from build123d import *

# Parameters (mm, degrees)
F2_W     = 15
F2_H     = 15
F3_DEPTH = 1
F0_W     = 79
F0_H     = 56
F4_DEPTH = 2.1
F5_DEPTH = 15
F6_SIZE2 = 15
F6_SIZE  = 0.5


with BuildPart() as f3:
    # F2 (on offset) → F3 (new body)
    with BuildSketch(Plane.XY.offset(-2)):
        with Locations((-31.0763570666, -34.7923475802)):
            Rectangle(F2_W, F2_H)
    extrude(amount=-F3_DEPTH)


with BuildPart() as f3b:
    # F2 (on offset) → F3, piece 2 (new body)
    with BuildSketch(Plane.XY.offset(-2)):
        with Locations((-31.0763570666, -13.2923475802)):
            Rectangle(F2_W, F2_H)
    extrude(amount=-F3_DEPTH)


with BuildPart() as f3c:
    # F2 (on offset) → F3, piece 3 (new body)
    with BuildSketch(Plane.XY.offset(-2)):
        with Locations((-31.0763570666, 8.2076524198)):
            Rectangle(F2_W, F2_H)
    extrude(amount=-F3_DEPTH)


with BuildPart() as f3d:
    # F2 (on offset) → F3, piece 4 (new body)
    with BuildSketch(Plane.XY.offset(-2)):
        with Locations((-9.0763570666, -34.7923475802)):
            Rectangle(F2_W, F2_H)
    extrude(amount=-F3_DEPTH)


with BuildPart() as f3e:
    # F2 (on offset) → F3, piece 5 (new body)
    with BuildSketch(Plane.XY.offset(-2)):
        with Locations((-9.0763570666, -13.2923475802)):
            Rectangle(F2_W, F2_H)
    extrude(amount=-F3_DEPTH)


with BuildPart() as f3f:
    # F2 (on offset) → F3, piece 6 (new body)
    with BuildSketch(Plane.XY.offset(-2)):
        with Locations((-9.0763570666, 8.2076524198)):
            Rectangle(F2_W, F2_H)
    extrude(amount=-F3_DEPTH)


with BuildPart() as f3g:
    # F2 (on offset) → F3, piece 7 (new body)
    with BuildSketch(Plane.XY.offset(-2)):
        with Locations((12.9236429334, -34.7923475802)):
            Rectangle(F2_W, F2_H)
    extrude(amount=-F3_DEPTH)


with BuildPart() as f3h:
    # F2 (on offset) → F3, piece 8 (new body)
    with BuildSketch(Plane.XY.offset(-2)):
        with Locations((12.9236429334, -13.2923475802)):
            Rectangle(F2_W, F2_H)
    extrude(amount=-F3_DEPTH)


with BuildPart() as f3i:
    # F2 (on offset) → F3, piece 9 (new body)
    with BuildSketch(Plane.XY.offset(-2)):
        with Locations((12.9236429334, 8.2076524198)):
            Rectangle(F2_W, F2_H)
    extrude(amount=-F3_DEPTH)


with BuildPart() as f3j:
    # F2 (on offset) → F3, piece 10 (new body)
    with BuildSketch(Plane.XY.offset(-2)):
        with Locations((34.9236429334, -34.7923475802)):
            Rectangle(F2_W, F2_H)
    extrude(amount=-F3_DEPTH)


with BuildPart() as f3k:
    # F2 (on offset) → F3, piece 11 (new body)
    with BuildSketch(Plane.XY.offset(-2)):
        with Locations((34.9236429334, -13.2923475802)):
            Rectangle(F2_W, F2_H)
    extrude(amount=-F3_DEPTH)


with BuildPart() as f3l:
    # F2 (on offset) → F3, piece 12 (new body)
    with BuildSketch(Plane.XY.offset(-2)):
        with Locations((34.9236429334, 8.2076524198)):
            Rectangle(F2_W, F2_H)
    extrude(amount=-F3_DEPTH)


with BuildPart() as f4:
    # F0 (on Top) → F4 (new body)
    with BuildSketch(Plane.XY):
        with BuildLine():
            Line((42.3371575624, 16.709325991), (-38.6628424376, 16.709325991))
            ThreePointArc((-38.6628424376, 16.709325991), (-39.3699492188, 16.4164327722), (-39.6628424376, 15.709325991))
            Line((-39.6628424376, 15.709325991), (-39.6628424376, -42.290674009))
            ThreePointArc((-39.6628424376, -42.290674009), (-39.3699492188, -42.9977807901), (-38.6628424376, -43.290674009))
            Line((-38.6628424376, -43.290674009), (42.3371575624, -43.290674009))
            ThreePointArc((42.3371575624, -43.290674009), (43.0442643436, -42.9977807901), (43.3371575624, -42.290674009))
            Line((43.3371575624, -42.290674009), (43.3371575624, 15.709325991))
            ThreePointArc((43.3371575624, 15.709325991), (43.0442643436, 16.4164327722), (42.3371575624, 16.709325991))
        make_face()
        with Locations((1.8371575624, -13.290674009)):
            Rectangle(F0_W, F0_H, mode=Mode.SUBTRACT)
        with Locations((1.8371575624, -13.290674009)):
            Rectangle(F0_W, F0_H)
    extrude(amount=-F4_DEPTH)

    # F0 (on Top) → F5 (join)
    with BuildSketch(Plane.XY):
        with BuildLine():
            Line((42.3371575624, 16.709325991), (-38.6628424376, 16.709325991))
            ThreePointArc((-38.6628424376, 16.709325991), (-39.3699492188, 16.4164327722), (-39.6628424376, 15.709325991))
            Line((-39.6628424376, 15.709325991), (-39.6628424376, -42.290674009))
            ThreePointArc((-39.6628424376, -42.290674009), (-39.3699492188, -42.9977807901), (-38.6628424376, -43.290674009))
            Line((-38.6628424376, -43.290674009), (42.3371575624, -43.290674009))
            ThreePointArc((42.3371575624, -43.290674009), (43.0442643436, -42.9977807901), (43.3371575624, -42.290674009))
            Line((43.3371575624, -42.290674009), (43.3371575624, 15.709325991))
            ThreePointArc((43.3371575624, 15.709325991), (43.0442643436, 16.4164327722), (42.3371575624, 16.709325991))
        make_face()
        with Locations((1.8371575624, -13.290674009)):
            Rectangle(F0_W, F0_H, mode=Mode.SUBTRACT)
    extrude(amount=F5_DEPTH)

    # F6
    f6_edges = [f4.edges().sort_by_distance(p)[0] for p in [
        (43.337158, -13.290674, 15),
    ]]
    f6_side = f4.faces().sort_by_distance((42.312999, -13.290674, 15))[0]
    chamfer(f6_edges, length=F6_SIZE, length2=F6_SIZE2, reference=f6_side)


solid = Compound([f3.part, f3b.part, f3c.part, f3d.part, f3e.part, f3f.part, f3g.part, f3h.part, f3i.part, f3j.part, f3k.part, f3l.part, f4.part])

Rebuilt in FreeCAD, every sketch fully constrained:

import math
import FreeCAD as App
import Part
import Sketcher

V = App.Vector
Q = App.Units.Quantity


def edges_at(feature, points):
    """Names of the edges that pass closest to the given points."""
    edges = feature.Shape.Edges
    near = lambda p: min(range(len(edges)), key=lambda i: edges[i].distToShape(Part.Vertex(*p))[0])
    return sorted({f"Edge{near(p) + 1}" for p in points})


def add_polygon(sketch, points):
    """Adds a closed chain of lines whose ends are joined by coincident constraints."""
    first, n = sketch.GeometryCount, len(points)
    for a, b in zip(points, points[1:] + points[:1]):
        sketch.addGeometry(Part.LineSegment(App.Vector(*a, 0), App.Vector(*b, 0)), False)
    for i in range(n):
        sketch.addConstraint(Sketcher.Constraint("Coincident", first + i, 2, first + (i + 1) % n, 1))

doc = App.newDocument("Part")
body = doc.addObject("PartDesign::Body", "Body")

sketch1 = body.newObject("Sketcher::SketchObject", "Sketch")
sketch1.AttachmentSupport = (doc.getObject("XY_Plane"), [""])
sketch1.MapMode = "FlatFace"
sketch1.AttachmentOffset = App.Placement(V(0, 0, -2), App.Rotation())
add_polygon(sketch1, [(-38.576357, -27.292348), (-38.576357, -42.292348), (-23.576357, -42.292348), (-23.576357, -27.292348)])
sketch1.addConstraint(Sketcher.Constraint("Vertical", 0))
sketch1.addConstraint(Sketcher.Constraint("Horizontal", 1))
sketch1.addConstraint(Sketcher.Constraint("Vertical", 2))
sketch1.addConstraint(Sketcher.Constraint("Horizontal", 3))
sketch1.addConstraint(Sketcher.Constraint("Equal", 3, 0))
sketch1.addConstraint(Sketcher.Constraint("DistanceX", 1, 1, 1, 2, Q("15 mm")))
sketch1.addConstraint(Sketcher.Constraint("DistanceX", 0, 2, -1, 1, Q("38.576357 mm")))
sketch1.addConstraint(Sketcher.Constraint("DistanceY", 0, 2, -1, 1, Q("42.292348 mm")))
pad1 = body.newObject("PartDesign::Pad", "Pad")
pad1.Profile = sketch1
pad1.Length = 1
pad1.Reversed = True
body2 = doc.addObject("PartDesign::Body", "Body001")

sketch2 = body2.newObject("Sketcher::SketchObject", "Sketch001")
sketch2.AttachmentSupport = (doc.getObject("XY_Plane001"), [""])
sketch2.MapMode = "FlatFace"
sketch2.AttachmentOffset = App.Placement(V(0, 0, -2), App.Rotation())
add_polygon(sketch2, [(-38.576357, -5.792348), (-38.576357, -20.792348), (-23.576357, -20.792348), (-23.576357, -5.792348)])
sketch2.addConstraint(Sketcher.Constraint("Vertical", 0))
sketch2.addConstraint(Sketcher.Constraint("Horizontal", 1))
sketch2.addConstraint(Sketcher.Constraint("Vertical", 2))
sketch2.addConstraint(Sketcher.Constraint("Horizontal", 3))
sketch2.addConstraint(Sketcher.Constraint("Equal", 3, 0))
sketch2.addConstraint(Sketcher.Constraint("DistanceX", 1, 1, 1, 2, Q("15 mm")))
sketch2.addConstraint(Sketcher.Constraint("DistanceX", 0, 2, -1, 1, Q("38.576357 mm")))
sketch2.addConstraint(Sketcher.Constraint("DistanceY", 0, 2, -1, 1, Q("20.792348 mm")))
pad2 = body2.newObject("PartDesign::Pad", "Pad001")
pad2.Profile = sketch2
pad2.Length = 1
pad2.Reversed = True
body3 = doc.addObject("PartDesign::Body", "Body002")

sketch3 = body3.newObject("Sketcher::SketchObject", "Sketch002")
sketch3.AttachmentSupport = (doc.getObject("XY_Plane002"), [""])
sketch3.MapMode = "FlatFace"
sketch3.AttachmentOffset = App.Placement(V(0, 0, -2), App.Rotation())
add_polygon(sketch3, [(-38.576357, 15.707652), (-38.576357, 0.707652), (-23.576357, 0.707652), (-23.576357, 15.707652)])
sketch3.addConstraint(Sketcher.Constraint("Vertical", 0))
sketch3.addConstraint(Sketcher.Constraint("Horizontal", 1))
sketch3.addConstraint(Sketcher.Constraint("Vertical", 2))
sketch3.addConstraint(Sketcher.Constraint("Horizontal", 3))
sketch3.addConstraint(Sketcher.Constraint("Equal", 3, 0))
sketch3.addConstraint(Sketcher.Constraint("DistanceX", 1, 1, 1, 2, Q("15 mm")))
sketch3.addConstraint(Sketcher.Constraint("DistanceX", 0, 2, -1, 1, Q("38.576357 mm")))
sketch3.addConstraint(Sketcher.Constraint("DistanceY", -1, 1, 0, 2, Q("0.707652 mm")))
pad3 = body3.newObject("PartDesign::Pad", "Pad002")
pad3.Profile = sketch3
pad3.Length = 1
pad3.Reversed = True
body4 = doc.addObject("PartDesign::Body", "Body003")

sketch4 = body4.newObject("Sketcher::SketchObject", "Sketch003")
sketch4.AttachmentSupport = (doc.getObject("XY_Plane003"), [""])
sketch4.MapMode = "FlatFace"
sketch4.AttachmentOffset = App.Placement(V(0, 0, -2), App.Rotation())
add_polygon(sketch4, [(-16.576357, -27.292348), (-16.576357, -42.292348), (-1.576357, -42.292348), (-1.576357, -27.292348)])
sketch4.addConstraint(Sketcher.Constraint("Vertical", 0))
sketch4.addConstraint(Sketcher.Constraint("Horizontal", 1))
sketch4.addConstraint(Sketcher.Constraint("Vertical", 2))
sketch4.addConstraint(Sketcher.Constraint("Horizontal", 3))
sketch4.addConstraint(Sketcher.Constraint("Equal", 3, 0))
sketch4.addConstraint(Sketcher.Constraint("DistanceX", 1, 1, 1, 2, Q("15 mm")))
sketch4.addConstraint(Sketcher.Constraint("DistanceX", 0, 2, -1, 1, Q("16.576357 mm")))
sketch4.addConstraint(Sketcher.Constraint("DistanceY", 0, 2, -1, 1, Q("42.292348 mm")))
pad4 = body4.newObject("PartDesign::Pad", "Pad003")
pad4.Profile = sketch4
pad4.Length = 1
pad4.Reversed = True
body5 = doc.addObject("PartDesign::Body", "Body004")

sketch5 = body5.newObject("Sketcher::SketchObject", "Sketch004")
sketch5.AttachmentSupport = (doc.getObject("XY_Plane004"), [""])
sketch5.MapMode = "FlatFace"
sketch5.AttachmentOffset = App.Placement(V(0, 0, -2), App.Rotation())
add_polygon(sketch5, [(-16.576357, -5.792348), (-16.576357, -20.792348), (-1.576357, -20.792348), (-1.576357, -5.792348)])
sketch5.addConstraint(Sketcher.Constraint("Vertical", 0))
sketch5.addConstraint(Sketcher.Constraint("Horizontal", 1))
sketch5.addConstraint(Sketcher.Constraint("Vertical", 2))
sketch5.addConstraint(Sketcher.Constraint("Horizontal", 3))
sketch5.addConstraint(Sketcher.Constraint("Equal", 3, 0))
sketch5.addConstraint(Sketcher.Constraint("DistanceX", 1, 1, 1, 2, Q("15 mm")))
sketch5.addConstraint(Sketcher.Constraint("DistanceX", 0, 2, -1, 1, Q("16.576357 mm")))
sketch5.addConstraint(Sketcher.Constraint("DistanceY", 0, 2, -1, 1, Q("20.792348 mm")))
pad5 = body5.newObject("PartDesign::Pad", "Pad004")
pad5.Profile = sketch5
pad5.Length = 1
pad5.Reversed = True
body6 = doc.addObject("PartDesign::Body", "Body005")

sketch6 = body6.newObject("Sketcher::SketchObject", "Sketch005")
sketch6.AttachmentSupport = (doc.getObject("XY_Plane005"), [""])
sketch6.MapMode = "FlatFace"
sketch6.AttachmentOffset = App.Placement(V(0, 0, -2), App.Rotation())
add_polygon(sketch6, [(-16.576357, 15.707652), (-16.576357, 0.707652), (-1.576357, 0.707652), (-1.576357, 15.707652)])
sketch6.addConstraint(Sketcher.Constraint("Vertical", 0))
sketch6.addConstraint(Sketcher.Constraint("Horizontal", 1))
sketch6.addConstraint(Sketcher.Constraint("Vertical", 2))
sketch6.addConstraint(Sketcher.Constraint("Horizontal", 3))
sketch6.addConstraint(Sketcher.Constraint("Equal", 3, 0))
sketch6.addConstraint(Sketcher.Constraint("DistanceX", 1, 1, 1, 2, Q("15 mm")))
sketch6.addConstraint(Sketcher.Constraint("DistanceX", 0, 2, -1, 1, Q("16.576357 mm")))
sketch6.addConstraint(Sketcher.Constraint("DistanceY", -1, 1, 0, 2, Q("0.707652 mm")))
pad6 = body6.newObject("PartDesign::Pad", "Pad005")
pad6.Profile = sketch6
pad6.Length = 1
pad6.Reversed = True
body7 = doc.addObject("PartDesign::Body", "Body006")

sketch7 = body7.newObject("Sketcher::SketchObject", "Sketch006")
sketch7.AttachmentSupport = (doc.getObject("XY_Plane006"), [""])
sketch7.MapMode = "FlatFace"
sketch7.AttachmentOffset = App.Placement(V(0, 0, -2), App.Rotation())
add_polygon(sketch7, [(5.423643, -27.292348), (5.423643, -42.292348), (20.423643, -42.292348), (20.423643, -27.292348)])
sketch7.addConstraint(Sketcher.Constraint("Vertical", 0))
sketch7.addConstraint(Sketcher.Constraint("Horizontal", 1))
sketch7.addConstraint(Sketcher.Constraint("Vertical", 2))
sketch7.addConstraint(Sketcher.Constraint("Horizontal", 3))
sketch7.addConstraint(Sketcher.Constraint("Equal", 3, 0))
sketch7.addConstraint(Sketcher.Constraint("DistanceX", 1, 1, 1, 2, Q("15 mm")))
sketch7.addConstraint(Sketcher.Constraint("DistanceX", -1, 1, 0, 2, Q("5.423643 mm")))
sketch7.addConstraint(Sketcher.Constraint("DistanceY", 0, 2, -1, 1, Q("42.292348 mm")))
pad7 = body7.newObject("PartDesign::Pad", "Pad006")
pad7.Profile = sketch7
pad7.Length = 1
pad7.Reversed = True
body8 = doc.addObject("PartDesign::Body", "Body007")

sketch8 = body8.newObject("Sketcher::SketchObject", "Sketch007")
sketch8.AttachmentSupport = (doc.getObject("XY_Plane007"), [""])
sketch8.MapMode = "FlatFace"
sketch8.AttachmentOffset = App.Placement(V(0, 0, -2), App.Rotation())
add_polygon(sketch8, [(5.423643, -5.792348), (5.423643, -20.792348), (20.423643, -20.792348), (20.423643, -5.792348)])
sketch8.addConstraint(Sketcher.Constraint("Vertical", 0))
sketch8.addConstraint(Sketcher.Constraint("Horizontal", 1))
sketch8.addConstraint(Sketcher.Constraint("Vertical", 2))
sketch8.addConstraint(Sketcher.Constraint("Horizontal", 3))
sketch8.addConstraint(Sketcher.Constraint("Equal", 3, 0))
sketch8.addConstraint(Sketcher.Constraint("DistanceX", 1, 1, 1, 2, Q("15 mm")))
sketch8.addConstraint(Sketcher.Constraint("DistanceX", -1, 1, 0, 2, Q("5.423643 mm")))
sketch8.addConstraint(Sketcher.Constraint("DistanceY", 0, 2, -1, 1, Q("20.792348 mm")))
pad8 = body8.newObject("PartDesign::Pad", "Pad007")
pad8.Profile = sketch8
pad8.Length = 1
pad8.Reversed = True
body9 = doc.addObject("PartDesign::Body", "Body008")

sketch9 = body9.newObject("Sketcher::SketchObject", "Sketch008")
sketch9.AttachmentSupport = (doc.getObject("XY_Plane008"), [""])
sketch9.MapMode = "FlatFace"
sketch9.AttachmentOffset = App.Placement(V(0, 0, -2), App.Rotation())
add_polygon(sketch9, [(5.423643, 15.707652), (5.423643, 0.707652), (20.423643, 0.707652), (20.423643, 15.707652)])
sketch9.addConstraint(Sketcher.Constraint("Vertical", 0))
sketch9.addConstraint(Sketcher.Constraint("Horizontal", 1))
sketch9.addConstraint(Sketcher.Constraint("Vertical", 2))
sketch9.addConstraint(Sketcher.Constraint("Horizontal", 3))
sketch9.addConstraint(Sketcher.Constraint("Equal", 3, 0))
sketch9.addConstraint(Sketcher.Constraint("DistanceX", 1, 1, 1, 2, Q("15 mm")))
sketch9.addConstraint(Sketcher.Constraint("DistanceX", -1, 1, 0, 2, Q("5.423643 mm")))
sketch9.addConstraint(Sketcher.Constraint("DistanceY", -1, 1, 0, 2, Q("0.707652 mm")))
pad9 = body9.newObject("PartDesign::Pad", "Pad008")
pad9.Profile = sketch9
pad9.Length = 1
pad9.Reversed = True
body10 = doc.addObject("PartDesign::Body", "Body009")

sketch10 = body10.newObject("Sketcher::SketchObject", "Sketch009")
sketch10.AttachmentSupport = (doc.getObject("XY_Plane009"), [""])
sketch10.MapMode = "FlatFace"
sketch10.AttachmentOffset = App.Placement(V(0, 0, -2), App.Rotation())
add_polygon(sketch10, [(27.423643, -27.292348), (27.423643, -42.292348), (42.423643, -42.292348), (42.423643, -27.292348)])
sketch10.addConstraint(Sketcher.Constraint("Vertical", 0))
sketch10.addConstraint(Sketcher.Constraint("Horizontal", 1))
sketch10.addConstraint(Sketcher.Constraint("Vertical", 2))
sketch10.addConstraint(Sketcher.Constraint("Horizontal", 3))
sketch10.addConstraint(Sketcher.Constraint("Equal", 3, 0))
sketch10.addConstraint(Sketcher.Constraint("DistanceX", 1, 1, 1, 2, Q("15 mm")))
sketch10.addConstraint(Sketcher.Constraint("DistanceX", -1, 1, 0, 2, Q("27.423643 mm")))
sketch10.addConstraint(Sketcher.Constraint("DistanceY", 0, 2, -1, 1, Q("42.292348 mm")))
pad10 = body10.newObject("PartDesign::Pad", "Pad009")
pad10.Profile = sketch10
pad10.Length = 1
pad10.Reversed = True
body11 = doc.addObject("PartDesign::Body", "Body010")

sketch11 = body11.newObject("Sketcher::SketchObject", "Sketch010")
sketch11.AttachmentSupport = (doc.getObject("XY_Plane010"), [""])
sketch11.MapMode = "FlatFace"
sketch11.AttachmentOffset = App.Placement(V(0, 0, -2), App.Rotation())
add_polygon(sketch11, [(27.423643, -5.792348), (27.423643, -20.792348), (42.423643, -20.792348), (42.423643, -5.792348)])
sketch11.addConstraint(Sketcher.Constraint("Vertical", 0))
sketch11.addConstraint(Sketcher.Constraint("Horizontal", 1))
sketch11.addConstraint(Sketcher.Constraint("Vertical", 2))
sketch11.addConstraint(Sketcher.Constraint("Horizontal", 3))
sketch11.addConstraint(Sketcher.Constraint("Equal", 3, 0))
sketch11.addConstraint(Sketcher.Constraint("DistanceX", 1, 1, 1, 2, Q("15 mm")))
sketch11.addConstraint(Sketcher.Constraint("DistanceX", -1, 1, 0, 2, Q("27.423643 mm")))
sketch11.addConstraint(Sketcher.Constraint("DistanceY", 0, 2, -1, 1, Q("20.792348 mm")))
pad11 = body11.newObject("PartDesign::Pad", "Pad010")
pad11.Profile = sketch11
pad11.Length = 1
pad11.Reversed = True
body12 = doc.addObject("PartDesign::Body", "Body011")

sketch12 = body12.newObject("Sketcher::SketchObject", "Sketch011")
sketch12.AttachmentSupport = (doc.getObject("XY_Plane011"), [""])
sketch12.MapMode = "FlatFace"
sketch12.AttachmentOffset = App.Placement(V(0, 0, -2), App.Rotation())
add_polygon(sketch12, [(27.423643, 15.707652), (27.423643, 0.707652), (42.423643, 0.707652), (42.423643, 15.707652)])
sketch12.addConstraint(Sketcher.Constraint("Vertical", 0))
sketch12.addConstraint(Sketcher.Constraint("Horizontal", 1))
sketch12.addConstraint(Sketcher.Constraint("Vertical", 2))
sketch12.addConstraint(Sketcher.Constraint("Horizontal", 3))
sketch12.addConstraint(Sketcher.Constraint("Equal", 3, 0))
sketch12.addConstraint(Sketcher.Constraint("DistanceX", 1, 1, 1, 2, Q("15 mm")))
sketch12.addConstraint(Sketcher.Constraint("DistanceX", -1, 1, 0, 2, Q("27.423643 mm")))
sketch12.addConstraint(Sketcher.Constraint("DistanceY", -1, 1, 0, 2, Q("0.707652 mm")))
pad12 = body12.newObject("PartDesign::Pad", "Pad011")
pad12.Profile = sketch12
pad12.Length = 1
pad12.Reversed = True
body13 = doc.addObject("PartDesign::Body", "Body012")

sketch13 = body13.newObject("Sketcher::SketchObject", "Sketch012")
sketch13.AttachmentSupport = (doc.getObject("XY_Plane012"), [""])
sketch13.MapMode = "FlatFace"
sketch13.addGeometry(Part.LineSegment(V(42.337158, 16.709326, 0), V(-38.662842, 16.709326, 0)), False)
sketch13.addGeometry(Part.ArcOfCircle(Part.Circle(V(-38.662842, 15.709326, 0), V(0, 0, 1), 1), math.radians(90), math.radians(180)), False)
sketch13.addGeometry(Part.LineSegment(V(-39.662842, 15.709326, 0), V(-39.662842, -42.290674, 0)), False)
sketch13.addGeometry(Part.ArcOfCircle(Part.Circle(V(-38.662842, -42.290674, 0), V(0, 0, 1), 1), math.radians(180), math.radians(270)), False)
sketch13.addGeometry(Part.LineSegment(V(-38.662842, -43.290674, 0), V(42.337158, -43.290674, 0)), False)
sketch13.addGeometry(Part.ArcOfCircle(Part.Circle(V(42.337158, -42.290674, 0), V(0, 0, 1), 1), math.radians(-90), math.radians(0)), False)
sketch13.addGeometry(Part.LineSegment(V(43.337158, -42.290674, 0), V(43.337158, 15.709326, 0)), False)
sketch13.addGeometry(Part.ArcOfCircle(Part.Circle(V(42.337158, 15.709326, 0), V(0, 0, 1), 1), math.radians(0), math.radians(90)), False)
sketch13.addConstraint(Sketcher.Constraint("Tangent", 0, 2, 1, 1))
sketch13.addConstraint(Sketcher.Constraint("Tangent", 1, 2, 2, 1))
sketch13.addConstraint(Sketcher.Constraint("Tangent", 2, 2, 3, 1))
sketch13.addConstraint(Sketcher.Constraint("Tangent", 3, 2, 4, 1))
sketch13.addConstraint(Sketcher.Constraint("Tangent", 4, 2, 5, 1))
sketch13.addConstraint(Sketcher.Constraint("Tangent", 5, 2, 6, 1))
sketch13.addConstraint(Sketcher.Constraint("Tangent", 6, 2, 7, 1))
sketch13.addConstraint(Sketcher.Constraint("Tangent", 7, 2, 0, 1))
sketch13.addConstraint(Sketcher.Constraint("Horizontal", 0))
sketch13.addConstraint(Sketcher.Constraint("Vertical", 2))
sketch13.addConstraint(Sketcher.Constraint("Horizontal", 4))
sketch13.addConstraint(Sketcher.Constraint("Vertical", 6))
sketch13.addConstraint(Sketcher.Constraint("Equal", 1, 3))
sketch13.addConstraint(Sketcher.Constraint("Equal", 3, 5))
sketch13.addConstraint(Sketcher.Constraint("Equal", 5, 7))
sketch13.addConstraint(Sketcher.Constraint("Radius", 1, Q("1 mm")))
sketch13.addConstraint(Sketcher.Constraint("DistanceX", 0, 2, 0, 1, Q("81 mm")))
sketch13.addConstraint(Sketcher.Constraint("DistanceY", 2, 2, 2, 1, Q("58 mm")))
sketch13.addConstraint(Sketcher.Constraint("DistanceX", 1, 3, -1, 1, Q("38.662842 mm")))
sketch13.addConstraint(Sketcher.Constraint("DistanceY", -1, 1, 1, 3, Q("15.709326 mm")))
pad13 = body13.newObject("PartDesign::Pad", "Pad012")
pad13.Profile = sketch13
pad13.Length = 2.1
pad13.Reversed = True

sketch14 = body13.newObject("Sketcher::SketchObject", "Sketch013")
sketch14.AttachmentSupport = (doc.getObject("XY_Plane012"), [""])
sketch14.MapMode = "FlatFace"
sketch14.addGeometry(Part.LineSegment(V(42.337158, 16.709326, 0), V(-38.662842, 16.709326, 0)), False)
sketch14.addGeometry(Part.ArcOfCircle(Part.Circle(V(-38.662842, 15.709326, 0), V(0, 0, 1), 1), math.radians(90), math.radians(180)), False)
sketch14.addGeometry(Part.LineSegment(V(-39.662842, 15.709326, 0), V(-39.662842, -42.290674, 0)), False)
sketch14.addGeometry(Part.ArcOfCircle(Part.Circle(V(-38.662842, -42.290674, 0), V(0, 0, 1), 1), math.radians(180), math.radians(270)), False)
sketch14.addGeometry(Part.LineSegment(V(-38.662842, -43.290674, 0), V(42.337158, -43.290674, 0)), False)
sketch14.addGeometry(Part.ArcOfCircle(Part.Circle(V(42.337158, -42.290674, 0), V(0, 0, 1), 1), math.radians(-90), math.radians(0)), False)
sketch14.addGeometry(Part.LineSegment(V(43.337158, -42.290674, 0), V(43.337158, 15.709326, 0)), False)
sketch14.addGeometry(Part.ArcOfCircle(Part.Circle(V(42.337158, 15.709326, 0), V(0, 0, 1), 1), math.radians(0), math.radians(90)), False)
add_polygon(sketch14, [(41.337158, -41.290674), (-37.662842, -41.290674), (-37.662842, 14.709326), (41.337158, 14.709326)])
sketch14.addConstraint(Sketcher.Constraint("Tangent", 0, 2, 1, 1))
sketch14.addConstraint(Sketcher.Constraint("Tangent", 1, 2, 2, 1))
sketch14.addConstraint(Sketcher.Constraint("Tangent", 2, 2, 3, 1))
sketch14.addConstraint(Sketcher.Constraint("Tangent", 3, 2, 4, 1))
sketch14.addConstraint(Sketcher.Constraint("Tangent", 4, 2, 5, 1))
sketch14.addConstraint(Sketcher.Constraint("Tangent", 5, 2, 6, 1))
sketch14.addConstraint(Sketcher.Constraint("Tangent", 6, 2, 7, 1))
sketch14.addConstraint(Sketcher.Constraint("Tangent", 7, 2, 0, 1))
sketch14.addConstraint(Sketcher.Constraint("Horizontal", 0))
sketch14.addConstraint(Sketcher.Constraint("Vertical", 2))
sketch14.addConstraint(Sketcher.Constraint("Horizontal", 4))
sketch14.addConstraint(Sketcher.Constraint("Vertical", 6))
sketch14.addConstraint(Sketcher.Constraint("Horizontal", 8))
sketch14.addConstraint(Sketcher.Constraint("Vertical", 9))
sketch14.addConstraint(Sketcher.Constraint("Horizontal", 10))
sketch14.addConstraint(Sketcher.Constraint("Vertical", 11))
sketch14.addConstraint(Sketcher.Constraint("Equal", 1, 3))
sketch14.addConstraint(Sketcher.Constraint("Equal", 3, 5))
sketch14.addConstraint(Sketcher.Constraint("Equal", 5, 7))
sketch14.addConstraint(Sketcher.Constraint("Radius", 1, Q("1 mm")))
sketch14.addConstraint(Sketcher.Constraint("DistanceX", 0, 2, 0, 1, Q("81 mm")))
sketch14.addConstraint(Sketcher.Constraint("DistanceX", 8, 2, 8, 1, Q("79 mm")))
sketch14.addConstraint(Sketcher.Constraint("DistanceY", 2, 2, 2, 1, Q("58 mm")))
sketch14.addConstraint(Sketcher.Constraint("DistanceY", 9, 1, 9, 2, Q("56 mm")))
sketch14.addConstraint(Sketcher.Constraint("DistanceX", 3, 3, 8, 2, Q("1 mm")))
sketch14.addConstraint(Sketcher.Constraint("DistanceY", 3, 3, 8, 2, Q("1 mm")))
sketch14.addConstraint(Sketcher.Constraint("DistanceX", 1, 3, -1, 1, Q("38.662842 mm")))
sketch14.addConstraint(Sketcher.Constraint("DistanceY", -1, 1, 1, 3, Q("15.709326 mm")))
pad14 = body13.newObject("PartDesign::Pad", "Pad013")
pad14.Profile = sketch14
pad14.Length = 15
doc.recompute()

chamfer = body13.newObject("PartDesign::Chamfer", "Chamfer")
chamfer.Base = (pad14, edges_at(pad14, [(43.337, -13.291, 15)]))
chamfer.ChamferType = "Two distances"
chamfer.Size = 0.5
chamfer.Size2 = 15

doc.recompute()
